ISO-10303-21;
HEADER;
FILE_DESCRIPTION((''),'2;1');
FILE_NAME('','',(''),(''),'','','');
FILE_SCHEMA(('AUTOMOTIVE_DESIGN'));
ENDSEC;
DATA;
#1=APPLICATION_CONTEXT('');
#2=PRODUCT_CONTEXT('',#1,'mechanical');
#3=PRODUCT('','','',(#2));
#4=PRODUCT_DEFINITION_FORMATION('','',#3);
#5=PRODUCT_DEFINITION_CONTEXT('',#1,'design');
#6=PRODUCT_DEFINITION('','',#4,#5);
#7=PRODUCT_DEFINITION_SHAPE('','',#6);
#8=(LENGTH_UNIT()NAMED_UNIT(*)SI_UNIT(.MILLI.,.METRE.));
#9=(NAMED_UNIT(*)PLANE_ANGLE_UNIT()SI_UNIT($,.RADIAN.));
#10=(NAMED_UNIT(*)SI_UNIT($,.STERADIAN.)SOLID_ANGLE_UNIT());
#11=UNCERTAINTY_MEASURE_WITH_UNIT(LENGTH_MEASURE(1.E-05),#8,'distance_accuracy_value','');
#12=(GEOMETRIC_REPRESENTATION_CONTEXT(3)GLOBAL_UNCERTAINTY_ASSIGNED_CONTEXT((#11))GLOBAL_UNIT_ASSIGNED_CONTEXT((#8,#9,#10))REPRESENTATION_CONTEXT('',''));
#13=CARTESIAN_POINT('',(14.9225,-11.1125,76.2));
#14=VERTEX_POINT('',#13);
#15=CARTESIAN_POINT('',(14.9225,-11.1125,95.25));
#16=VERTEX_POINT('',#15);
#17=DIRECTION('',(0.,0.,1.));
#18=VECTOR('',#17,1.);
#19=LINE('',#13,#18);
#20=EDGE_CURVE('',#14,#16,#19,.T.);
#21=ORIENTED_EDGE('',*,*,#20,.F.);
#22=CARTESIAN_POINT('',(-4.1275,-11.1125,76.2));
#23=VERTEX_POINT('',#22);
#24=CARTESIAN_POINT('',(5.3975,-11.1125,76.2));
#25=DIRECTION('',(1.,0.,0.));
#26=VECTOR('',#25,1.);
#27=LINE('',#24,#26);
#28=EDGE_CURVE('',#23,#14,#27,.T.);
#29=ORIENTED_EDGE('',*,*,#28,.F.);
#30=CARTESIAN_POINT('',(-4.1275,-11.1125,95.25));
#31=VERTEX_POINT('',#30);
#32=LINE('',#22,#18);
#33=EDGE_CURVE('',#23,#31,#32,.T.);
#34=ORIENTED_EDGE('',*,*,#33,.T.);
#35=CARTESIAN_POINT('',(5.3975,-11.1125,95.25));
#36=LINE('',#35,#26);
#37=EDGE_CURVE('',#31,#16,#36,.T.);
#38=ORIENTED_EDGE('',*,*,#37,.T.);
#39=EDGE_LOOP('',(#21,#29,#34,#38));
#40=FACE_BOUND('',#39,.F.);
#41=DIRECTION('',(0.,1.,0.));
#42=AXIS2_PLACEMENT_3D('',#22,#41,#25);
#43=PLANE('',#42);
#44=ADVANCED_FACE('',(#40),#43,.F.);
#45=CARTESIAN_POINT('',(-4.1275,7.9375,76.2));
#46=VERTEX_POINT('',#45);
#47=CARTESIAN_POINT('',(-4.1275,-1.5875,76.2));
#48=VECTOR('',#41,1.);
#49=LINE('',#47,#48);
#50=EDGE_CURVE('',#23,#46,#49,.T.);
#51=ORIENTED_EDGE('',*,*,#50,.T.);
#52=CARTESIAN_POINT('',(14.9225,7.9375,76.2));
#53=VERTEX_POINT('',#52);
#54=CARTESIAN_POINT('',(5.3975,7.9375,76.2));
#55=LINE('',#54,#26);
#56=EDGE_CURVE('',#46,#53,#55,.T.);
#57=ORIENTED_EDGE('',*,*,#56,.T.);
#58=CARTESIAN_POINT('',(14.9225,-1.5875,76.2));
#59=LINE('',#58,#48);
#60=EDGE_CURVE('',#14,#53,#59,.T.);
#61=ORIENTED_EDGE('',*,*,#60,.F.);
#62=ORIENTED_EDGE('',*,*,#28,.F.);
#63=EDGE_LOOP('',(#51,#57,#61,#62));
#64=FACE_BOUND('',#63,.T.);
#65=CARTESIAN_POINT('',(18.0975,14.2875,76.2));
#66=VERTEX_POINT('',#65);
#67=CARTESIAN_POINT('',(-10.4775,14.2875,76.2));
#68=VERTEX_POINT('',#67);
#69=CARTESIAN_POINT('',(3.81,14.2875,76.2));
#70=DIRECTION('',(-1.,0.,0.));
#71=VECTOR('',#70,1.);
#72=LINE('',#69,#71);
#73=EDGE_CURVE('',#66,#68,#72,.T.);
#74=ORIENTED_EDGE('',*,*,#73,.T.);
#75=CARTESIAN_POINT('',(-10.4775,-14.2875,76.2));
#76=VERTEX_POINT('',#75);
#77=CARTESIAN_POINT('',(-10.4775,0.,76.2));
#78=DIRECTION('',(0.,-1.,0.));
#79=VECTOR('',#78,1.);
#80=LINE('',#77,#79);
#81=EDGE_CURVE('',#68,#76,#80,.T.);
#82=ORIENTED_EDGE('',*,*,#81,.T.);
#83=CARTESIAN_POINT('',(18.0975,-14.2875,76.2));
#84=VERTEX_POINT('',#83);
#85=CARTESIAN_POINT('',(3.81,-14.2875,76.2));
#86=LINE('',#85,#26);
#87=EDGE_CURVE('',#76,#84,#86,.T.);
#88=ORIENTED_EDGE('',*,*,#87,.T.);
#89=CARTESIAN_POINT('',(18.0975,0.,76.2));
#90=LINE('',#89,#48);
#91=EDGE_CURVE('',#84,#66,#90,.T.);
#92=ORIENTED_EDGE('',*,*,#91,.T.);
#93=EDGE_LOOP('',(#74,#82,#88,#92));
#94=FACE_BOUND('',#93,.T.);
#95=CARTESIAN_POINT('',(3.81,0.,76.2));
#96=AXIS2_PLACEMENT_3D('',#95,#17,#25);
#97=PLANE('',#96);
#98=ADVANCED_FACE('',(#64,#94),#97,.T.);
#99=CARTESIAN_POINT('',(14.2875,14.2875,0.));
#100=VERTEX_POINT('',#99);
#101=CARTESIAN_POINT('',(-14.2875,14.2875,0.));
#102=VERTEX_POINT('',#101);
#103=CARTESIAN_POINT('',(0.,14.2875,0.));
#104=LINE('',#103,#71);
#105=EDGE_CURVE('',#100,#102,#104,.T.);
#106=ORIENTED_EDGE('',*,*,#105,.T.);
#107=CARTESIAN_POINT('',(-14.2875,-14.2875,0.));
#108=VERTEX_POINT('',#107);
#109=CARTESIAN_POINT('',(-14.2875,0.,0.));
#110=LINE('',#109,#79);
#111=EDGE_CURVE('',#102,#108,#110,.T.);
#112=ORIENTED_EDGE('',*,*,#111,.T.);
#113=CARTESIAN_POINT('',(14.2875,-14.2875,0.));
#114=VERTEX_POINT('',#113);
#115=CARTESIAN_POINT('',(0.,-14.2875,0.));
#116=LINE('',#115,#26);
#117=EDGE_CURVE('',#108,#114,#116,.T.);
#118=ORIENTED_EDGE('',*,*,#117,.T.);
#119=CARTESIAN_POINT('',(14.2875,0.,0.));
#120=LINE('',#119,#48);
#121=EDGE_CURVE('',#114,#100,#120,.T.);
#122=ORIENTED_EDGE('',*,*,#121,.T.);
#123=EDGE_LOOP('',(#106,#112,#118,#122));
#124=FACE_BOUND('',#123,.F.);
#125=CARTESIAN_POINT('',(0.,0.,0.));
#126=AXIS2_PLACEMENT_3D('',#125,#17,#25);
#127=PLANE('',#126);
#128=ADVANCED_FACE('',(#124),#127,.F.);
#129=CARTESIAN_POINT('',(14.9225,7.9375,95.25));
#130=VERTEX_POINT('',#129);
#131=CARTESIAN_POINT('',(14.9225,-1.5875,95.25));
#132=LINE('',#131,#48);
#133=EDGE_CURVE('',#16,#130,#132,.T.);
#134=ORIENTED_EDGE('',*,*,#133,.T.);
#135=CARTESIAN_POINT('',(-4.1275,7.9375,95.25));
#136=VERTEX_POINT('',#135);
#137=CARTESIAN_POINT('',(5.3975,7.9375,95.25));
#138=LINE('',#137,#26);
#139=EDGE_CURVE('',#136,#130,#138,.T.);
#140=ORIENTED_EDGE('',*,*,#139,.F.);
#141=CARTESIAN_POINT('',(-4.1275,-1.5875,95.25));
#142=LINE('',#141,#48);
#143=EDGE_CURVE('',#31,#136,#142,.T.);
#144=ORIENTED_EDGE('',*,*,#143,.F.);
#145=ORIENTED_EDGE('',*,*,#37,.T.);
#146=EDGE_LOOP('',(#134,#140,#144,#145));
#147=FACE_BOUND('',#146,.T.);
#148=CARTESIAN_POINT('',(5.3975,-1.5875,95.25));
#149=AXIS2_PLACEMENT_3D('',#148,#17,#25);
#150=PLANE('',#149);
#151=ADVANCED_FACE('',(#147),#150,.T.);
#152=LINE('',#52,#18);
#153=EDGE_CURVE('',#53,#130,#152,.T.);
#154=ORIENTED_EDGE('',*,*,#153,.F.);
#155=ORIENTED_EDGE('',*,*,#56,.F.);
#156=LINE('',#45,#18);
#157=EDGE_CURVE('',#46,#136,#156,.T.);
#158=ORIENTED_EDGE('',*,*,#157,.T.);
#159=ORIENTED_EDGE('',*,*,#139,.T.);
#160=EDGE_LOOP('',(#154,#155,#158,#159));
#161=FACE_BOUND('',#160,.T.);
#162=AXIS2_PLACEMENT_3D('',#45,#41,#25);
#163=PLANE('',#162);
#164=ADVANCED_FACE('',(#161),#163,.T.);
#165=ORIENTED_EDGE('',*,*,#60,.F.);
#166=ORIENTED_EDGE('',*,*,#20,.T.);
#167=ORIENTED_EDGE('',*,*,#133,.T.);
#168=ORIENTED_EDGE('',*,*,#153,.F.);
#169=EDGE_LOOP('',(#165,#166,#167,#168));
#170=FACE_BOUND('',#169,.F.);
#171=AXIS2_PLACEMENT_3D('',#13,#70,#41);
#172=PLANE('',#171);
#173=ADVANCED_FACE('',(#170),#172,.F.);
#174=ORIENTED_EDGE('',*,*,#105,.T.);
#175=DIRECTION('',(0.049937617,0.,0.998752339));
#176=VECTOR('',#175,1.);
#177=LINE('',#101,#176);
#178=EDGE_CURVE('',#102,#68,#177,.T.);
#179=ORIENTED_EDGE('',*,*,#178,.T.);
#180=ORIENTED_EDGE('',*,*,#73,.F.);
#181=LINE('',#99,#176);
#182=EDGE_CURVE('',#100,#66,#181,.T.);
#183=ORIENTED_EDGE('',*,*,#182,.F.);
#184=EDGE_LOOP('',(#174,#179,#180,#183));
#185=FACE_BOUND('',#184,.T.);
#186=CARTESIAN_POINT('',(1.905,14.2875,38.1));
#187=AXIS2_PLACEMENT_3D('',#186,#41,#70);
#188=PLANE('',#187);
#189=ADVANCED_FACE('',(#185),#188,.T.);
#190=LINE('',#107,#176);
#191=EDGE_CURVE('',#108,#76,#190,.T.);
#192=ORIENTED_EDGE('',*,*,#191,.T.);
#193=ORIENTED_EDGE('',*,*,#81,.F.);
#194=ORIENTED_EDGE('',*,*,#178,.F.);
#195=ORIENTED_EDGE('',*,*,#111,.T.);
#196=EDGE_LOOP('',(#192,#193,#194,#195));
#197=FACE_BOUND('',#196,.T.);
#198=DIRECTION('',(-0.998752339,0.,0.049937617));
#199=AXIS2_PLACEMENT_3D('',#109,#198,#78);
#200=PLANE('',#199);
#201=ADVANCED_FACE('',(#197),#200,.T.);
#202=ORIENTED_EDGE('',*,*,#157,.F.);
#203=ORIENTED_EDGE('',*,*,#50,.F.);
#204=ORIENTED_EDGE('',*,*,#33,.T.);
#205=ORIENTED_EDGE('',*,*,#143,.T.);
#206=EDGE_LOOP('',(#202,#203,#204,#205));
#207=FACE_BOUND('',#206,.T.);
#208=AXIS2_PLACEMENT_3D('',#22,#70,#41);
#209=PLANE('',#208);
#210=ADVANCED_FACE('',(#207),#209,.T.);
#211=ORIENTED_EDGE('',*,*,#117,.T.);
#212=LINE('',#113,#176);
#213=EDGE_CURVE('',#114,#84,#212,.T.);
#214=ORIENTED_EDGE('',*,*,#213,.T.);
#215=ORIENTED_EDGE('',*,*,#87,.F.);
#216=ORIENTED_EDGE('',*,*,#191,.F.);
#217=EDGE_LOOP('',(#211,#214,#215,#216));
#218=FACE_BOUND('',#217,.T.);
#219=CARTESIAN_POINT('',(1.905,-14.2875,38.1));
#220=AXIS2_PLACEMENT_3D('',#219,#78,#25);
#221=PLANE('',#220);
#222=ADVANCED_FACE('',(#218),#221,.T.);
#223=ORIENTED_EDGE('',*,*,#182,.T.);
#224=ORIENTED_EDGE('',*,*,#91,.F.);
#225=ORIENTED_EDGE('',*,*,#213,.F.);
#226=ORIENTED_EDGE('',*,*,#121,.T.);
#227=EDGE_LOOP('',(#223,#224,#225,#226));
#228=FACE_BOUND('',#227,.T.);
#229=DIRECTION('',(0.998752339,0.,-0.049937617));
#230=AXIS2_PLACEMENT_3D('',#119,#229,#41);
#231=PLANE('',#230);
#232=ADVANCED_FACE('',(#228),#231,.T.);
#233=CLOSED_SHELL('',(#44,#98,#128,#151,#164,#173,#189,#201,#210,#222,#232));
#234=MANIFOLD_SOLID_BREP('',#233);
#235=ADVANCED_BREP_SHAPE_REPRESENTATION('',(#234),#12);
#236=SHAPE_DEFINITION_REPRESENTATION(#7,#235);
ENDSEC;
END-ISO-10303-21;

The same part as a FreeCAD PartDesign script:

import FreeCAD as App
import Part
import Sketcher
Q = App.Units.Quantity

doc = App.newDocument("Part")
body = doc.addObject("PartDesign::Body", "Body")

sketch1 = doc.addObject("Sketcher::SketchObject", "Sketch")
body.addObject(sketch1)
sketch1.AttachmentSupport = (doc.XY_Plane, [""])
sketch1.MapMode = "FlatFace"
sketch1.addGeometry([
    Part.LineSegment(App.Vector(-14.2875, 14.2875, 0), App.Vector(-14.2875, -14.2875, 0)),
    Part.LineSegment(App.Vector(-14.2875, -14.2875, 0), App.Vector(14.2875, -14.2875, 0)),
    Part.LineSegment(App.Vector(14.2875, -14.2875, 0), App.Vector(14.2875, 14.2875, 0)),
    Part.LineSegment(App.Vector(14.2875, 14.2875, 0), App.Vector(-14.2875, 14.2875, 0)),
], False)
sketch1.addConstraint([
    Sketcher.Constraint("Coincident", 0, 2, 1, 1),
    Sketcher.Constraint("Coincident", 1, 2, 2, 1),
    Sketcher.Constraint("Coincident", 2, 2, 3, 1),
    Sketcher.Constraint("Coincident", 3, 2, 0, 1),
    Sketcher.Constraint("Vertical", 0),
    Sketcher.Constraint("Horizontal", 1),
    Sketcher.Constraint("Vertical", 2),
    Sketcher.Constraint("Horizontal", 3),
    Sketcher.Constraint("Symmetric", 0, 2, 2, 2, -1, 1),
    Sketcher.Constraint("Equal", 3, 0),
    Sketcher.Constraint("DistanceX", 1, 1, 1, 2, Q("1.125 in")),
])

sketch2 = doc.addObject("Sketcher::SketchObject", "Sketch001")
body.addObject(sketch2)
sketch2.Placement = App.Placement(App.Vector(0, 0, 0), App.Rotation(App.Vector(0.049937617, 0, 0.998752339), App.Vector(0, 1, 0), App.Vector(-0.998752339, 0, 0.049937617), "ZXY"))
sketch2.addGeometry(Part.LineSegment(App.Vector(0, 0, 0), App.Vector(76.295191, 0, 0)), False)
sketch2.addConstraint([
    Sketcher.Constraint("Horizontal", 0),
    Sketcher.Constraint("Coincident", 0, 1, -1, 1),
    Sketcher.Constraint("DistanceX", 0, 1, 0, 2, Q("76.295191 mm")),
])
doc.recompute()

additivepipe = doc.addObject("PartDesign::AdditivePipe", "AdditivePipe")
body.addObject(additivepipe)
additivepipe.Profile = sketch1
additivepipe.Spine = (sketch2, ["Edge1"])

sketch3 = doc.addObject("Sketcher::SketchObject", "Sketch002")
body.addObject(sketch3)
sketch3.AttachmentSupport = (doc.XY_Plane, [""])
sketch3.MapMode = "FlatFace"
sketch3.AttachmentOffset = App.Placement(App.Vector(0, 0, 3 * 25.4), App.Rotation())
sketch3.addGeometry([
    Part.LineSegment(App.Vector(-4.1275, 7.9375, 0), App.Vector(-4.1275, -11.1125, 0)),
    Part.LineSegment(App.Vector(-4.1275, -11.1125, 0), App.Vector(14.9225, -11.1125, 0)),
    Part.LineSegment(App.Vector(14.9225, -11.1125, 0), App.Vector(14.9225, 7.9375, 0)),
    Part.LineSegment(App.Vector(14.9225, 7.9375, 0), App.Vector(-4.1275, 7.9375, 0)),
], False)
sketch3.addConstraint([
    Sketcher.Constraint("Coincident", 0, 2, 1, 1),
    Sketcher.Constraint("Coincident", 1, 2, 2, 1),
    Sketcher.Constraint("Coincident", 2, 2, 3, 1),
    Sketcher.Constraint("Coincident", 3, 2, 0, 1),
    Sketcher.Constraint("Vertical", 0),
    Sketcher.Constraint("Horizontal", 1),
    Sketcher.Constraint("Vertical", 2),
    Sketcher.Constraint("Horizontal", 3),
    Sketcher.Constraint("Equal", 3, 0),
    Sketcher.Constraint("DistanceX", 1, 1, 1, 2, Q("0.75 in")),
    Sketcher.Constraint("DistanceY", 0, 2, -1, 1, Q("0.4375 in")),
    Sketcher.Constraint("DistanceX", 0, 2, -1, 1, Q("0.1625 in")),
])
pad1 = doc.addObject("PartDesign::Pad", "Pad")
body.addObject(pad1)
pad1.Profile = sketch3
pad1.Length = Q("0.75 in")

doc.recompute()
